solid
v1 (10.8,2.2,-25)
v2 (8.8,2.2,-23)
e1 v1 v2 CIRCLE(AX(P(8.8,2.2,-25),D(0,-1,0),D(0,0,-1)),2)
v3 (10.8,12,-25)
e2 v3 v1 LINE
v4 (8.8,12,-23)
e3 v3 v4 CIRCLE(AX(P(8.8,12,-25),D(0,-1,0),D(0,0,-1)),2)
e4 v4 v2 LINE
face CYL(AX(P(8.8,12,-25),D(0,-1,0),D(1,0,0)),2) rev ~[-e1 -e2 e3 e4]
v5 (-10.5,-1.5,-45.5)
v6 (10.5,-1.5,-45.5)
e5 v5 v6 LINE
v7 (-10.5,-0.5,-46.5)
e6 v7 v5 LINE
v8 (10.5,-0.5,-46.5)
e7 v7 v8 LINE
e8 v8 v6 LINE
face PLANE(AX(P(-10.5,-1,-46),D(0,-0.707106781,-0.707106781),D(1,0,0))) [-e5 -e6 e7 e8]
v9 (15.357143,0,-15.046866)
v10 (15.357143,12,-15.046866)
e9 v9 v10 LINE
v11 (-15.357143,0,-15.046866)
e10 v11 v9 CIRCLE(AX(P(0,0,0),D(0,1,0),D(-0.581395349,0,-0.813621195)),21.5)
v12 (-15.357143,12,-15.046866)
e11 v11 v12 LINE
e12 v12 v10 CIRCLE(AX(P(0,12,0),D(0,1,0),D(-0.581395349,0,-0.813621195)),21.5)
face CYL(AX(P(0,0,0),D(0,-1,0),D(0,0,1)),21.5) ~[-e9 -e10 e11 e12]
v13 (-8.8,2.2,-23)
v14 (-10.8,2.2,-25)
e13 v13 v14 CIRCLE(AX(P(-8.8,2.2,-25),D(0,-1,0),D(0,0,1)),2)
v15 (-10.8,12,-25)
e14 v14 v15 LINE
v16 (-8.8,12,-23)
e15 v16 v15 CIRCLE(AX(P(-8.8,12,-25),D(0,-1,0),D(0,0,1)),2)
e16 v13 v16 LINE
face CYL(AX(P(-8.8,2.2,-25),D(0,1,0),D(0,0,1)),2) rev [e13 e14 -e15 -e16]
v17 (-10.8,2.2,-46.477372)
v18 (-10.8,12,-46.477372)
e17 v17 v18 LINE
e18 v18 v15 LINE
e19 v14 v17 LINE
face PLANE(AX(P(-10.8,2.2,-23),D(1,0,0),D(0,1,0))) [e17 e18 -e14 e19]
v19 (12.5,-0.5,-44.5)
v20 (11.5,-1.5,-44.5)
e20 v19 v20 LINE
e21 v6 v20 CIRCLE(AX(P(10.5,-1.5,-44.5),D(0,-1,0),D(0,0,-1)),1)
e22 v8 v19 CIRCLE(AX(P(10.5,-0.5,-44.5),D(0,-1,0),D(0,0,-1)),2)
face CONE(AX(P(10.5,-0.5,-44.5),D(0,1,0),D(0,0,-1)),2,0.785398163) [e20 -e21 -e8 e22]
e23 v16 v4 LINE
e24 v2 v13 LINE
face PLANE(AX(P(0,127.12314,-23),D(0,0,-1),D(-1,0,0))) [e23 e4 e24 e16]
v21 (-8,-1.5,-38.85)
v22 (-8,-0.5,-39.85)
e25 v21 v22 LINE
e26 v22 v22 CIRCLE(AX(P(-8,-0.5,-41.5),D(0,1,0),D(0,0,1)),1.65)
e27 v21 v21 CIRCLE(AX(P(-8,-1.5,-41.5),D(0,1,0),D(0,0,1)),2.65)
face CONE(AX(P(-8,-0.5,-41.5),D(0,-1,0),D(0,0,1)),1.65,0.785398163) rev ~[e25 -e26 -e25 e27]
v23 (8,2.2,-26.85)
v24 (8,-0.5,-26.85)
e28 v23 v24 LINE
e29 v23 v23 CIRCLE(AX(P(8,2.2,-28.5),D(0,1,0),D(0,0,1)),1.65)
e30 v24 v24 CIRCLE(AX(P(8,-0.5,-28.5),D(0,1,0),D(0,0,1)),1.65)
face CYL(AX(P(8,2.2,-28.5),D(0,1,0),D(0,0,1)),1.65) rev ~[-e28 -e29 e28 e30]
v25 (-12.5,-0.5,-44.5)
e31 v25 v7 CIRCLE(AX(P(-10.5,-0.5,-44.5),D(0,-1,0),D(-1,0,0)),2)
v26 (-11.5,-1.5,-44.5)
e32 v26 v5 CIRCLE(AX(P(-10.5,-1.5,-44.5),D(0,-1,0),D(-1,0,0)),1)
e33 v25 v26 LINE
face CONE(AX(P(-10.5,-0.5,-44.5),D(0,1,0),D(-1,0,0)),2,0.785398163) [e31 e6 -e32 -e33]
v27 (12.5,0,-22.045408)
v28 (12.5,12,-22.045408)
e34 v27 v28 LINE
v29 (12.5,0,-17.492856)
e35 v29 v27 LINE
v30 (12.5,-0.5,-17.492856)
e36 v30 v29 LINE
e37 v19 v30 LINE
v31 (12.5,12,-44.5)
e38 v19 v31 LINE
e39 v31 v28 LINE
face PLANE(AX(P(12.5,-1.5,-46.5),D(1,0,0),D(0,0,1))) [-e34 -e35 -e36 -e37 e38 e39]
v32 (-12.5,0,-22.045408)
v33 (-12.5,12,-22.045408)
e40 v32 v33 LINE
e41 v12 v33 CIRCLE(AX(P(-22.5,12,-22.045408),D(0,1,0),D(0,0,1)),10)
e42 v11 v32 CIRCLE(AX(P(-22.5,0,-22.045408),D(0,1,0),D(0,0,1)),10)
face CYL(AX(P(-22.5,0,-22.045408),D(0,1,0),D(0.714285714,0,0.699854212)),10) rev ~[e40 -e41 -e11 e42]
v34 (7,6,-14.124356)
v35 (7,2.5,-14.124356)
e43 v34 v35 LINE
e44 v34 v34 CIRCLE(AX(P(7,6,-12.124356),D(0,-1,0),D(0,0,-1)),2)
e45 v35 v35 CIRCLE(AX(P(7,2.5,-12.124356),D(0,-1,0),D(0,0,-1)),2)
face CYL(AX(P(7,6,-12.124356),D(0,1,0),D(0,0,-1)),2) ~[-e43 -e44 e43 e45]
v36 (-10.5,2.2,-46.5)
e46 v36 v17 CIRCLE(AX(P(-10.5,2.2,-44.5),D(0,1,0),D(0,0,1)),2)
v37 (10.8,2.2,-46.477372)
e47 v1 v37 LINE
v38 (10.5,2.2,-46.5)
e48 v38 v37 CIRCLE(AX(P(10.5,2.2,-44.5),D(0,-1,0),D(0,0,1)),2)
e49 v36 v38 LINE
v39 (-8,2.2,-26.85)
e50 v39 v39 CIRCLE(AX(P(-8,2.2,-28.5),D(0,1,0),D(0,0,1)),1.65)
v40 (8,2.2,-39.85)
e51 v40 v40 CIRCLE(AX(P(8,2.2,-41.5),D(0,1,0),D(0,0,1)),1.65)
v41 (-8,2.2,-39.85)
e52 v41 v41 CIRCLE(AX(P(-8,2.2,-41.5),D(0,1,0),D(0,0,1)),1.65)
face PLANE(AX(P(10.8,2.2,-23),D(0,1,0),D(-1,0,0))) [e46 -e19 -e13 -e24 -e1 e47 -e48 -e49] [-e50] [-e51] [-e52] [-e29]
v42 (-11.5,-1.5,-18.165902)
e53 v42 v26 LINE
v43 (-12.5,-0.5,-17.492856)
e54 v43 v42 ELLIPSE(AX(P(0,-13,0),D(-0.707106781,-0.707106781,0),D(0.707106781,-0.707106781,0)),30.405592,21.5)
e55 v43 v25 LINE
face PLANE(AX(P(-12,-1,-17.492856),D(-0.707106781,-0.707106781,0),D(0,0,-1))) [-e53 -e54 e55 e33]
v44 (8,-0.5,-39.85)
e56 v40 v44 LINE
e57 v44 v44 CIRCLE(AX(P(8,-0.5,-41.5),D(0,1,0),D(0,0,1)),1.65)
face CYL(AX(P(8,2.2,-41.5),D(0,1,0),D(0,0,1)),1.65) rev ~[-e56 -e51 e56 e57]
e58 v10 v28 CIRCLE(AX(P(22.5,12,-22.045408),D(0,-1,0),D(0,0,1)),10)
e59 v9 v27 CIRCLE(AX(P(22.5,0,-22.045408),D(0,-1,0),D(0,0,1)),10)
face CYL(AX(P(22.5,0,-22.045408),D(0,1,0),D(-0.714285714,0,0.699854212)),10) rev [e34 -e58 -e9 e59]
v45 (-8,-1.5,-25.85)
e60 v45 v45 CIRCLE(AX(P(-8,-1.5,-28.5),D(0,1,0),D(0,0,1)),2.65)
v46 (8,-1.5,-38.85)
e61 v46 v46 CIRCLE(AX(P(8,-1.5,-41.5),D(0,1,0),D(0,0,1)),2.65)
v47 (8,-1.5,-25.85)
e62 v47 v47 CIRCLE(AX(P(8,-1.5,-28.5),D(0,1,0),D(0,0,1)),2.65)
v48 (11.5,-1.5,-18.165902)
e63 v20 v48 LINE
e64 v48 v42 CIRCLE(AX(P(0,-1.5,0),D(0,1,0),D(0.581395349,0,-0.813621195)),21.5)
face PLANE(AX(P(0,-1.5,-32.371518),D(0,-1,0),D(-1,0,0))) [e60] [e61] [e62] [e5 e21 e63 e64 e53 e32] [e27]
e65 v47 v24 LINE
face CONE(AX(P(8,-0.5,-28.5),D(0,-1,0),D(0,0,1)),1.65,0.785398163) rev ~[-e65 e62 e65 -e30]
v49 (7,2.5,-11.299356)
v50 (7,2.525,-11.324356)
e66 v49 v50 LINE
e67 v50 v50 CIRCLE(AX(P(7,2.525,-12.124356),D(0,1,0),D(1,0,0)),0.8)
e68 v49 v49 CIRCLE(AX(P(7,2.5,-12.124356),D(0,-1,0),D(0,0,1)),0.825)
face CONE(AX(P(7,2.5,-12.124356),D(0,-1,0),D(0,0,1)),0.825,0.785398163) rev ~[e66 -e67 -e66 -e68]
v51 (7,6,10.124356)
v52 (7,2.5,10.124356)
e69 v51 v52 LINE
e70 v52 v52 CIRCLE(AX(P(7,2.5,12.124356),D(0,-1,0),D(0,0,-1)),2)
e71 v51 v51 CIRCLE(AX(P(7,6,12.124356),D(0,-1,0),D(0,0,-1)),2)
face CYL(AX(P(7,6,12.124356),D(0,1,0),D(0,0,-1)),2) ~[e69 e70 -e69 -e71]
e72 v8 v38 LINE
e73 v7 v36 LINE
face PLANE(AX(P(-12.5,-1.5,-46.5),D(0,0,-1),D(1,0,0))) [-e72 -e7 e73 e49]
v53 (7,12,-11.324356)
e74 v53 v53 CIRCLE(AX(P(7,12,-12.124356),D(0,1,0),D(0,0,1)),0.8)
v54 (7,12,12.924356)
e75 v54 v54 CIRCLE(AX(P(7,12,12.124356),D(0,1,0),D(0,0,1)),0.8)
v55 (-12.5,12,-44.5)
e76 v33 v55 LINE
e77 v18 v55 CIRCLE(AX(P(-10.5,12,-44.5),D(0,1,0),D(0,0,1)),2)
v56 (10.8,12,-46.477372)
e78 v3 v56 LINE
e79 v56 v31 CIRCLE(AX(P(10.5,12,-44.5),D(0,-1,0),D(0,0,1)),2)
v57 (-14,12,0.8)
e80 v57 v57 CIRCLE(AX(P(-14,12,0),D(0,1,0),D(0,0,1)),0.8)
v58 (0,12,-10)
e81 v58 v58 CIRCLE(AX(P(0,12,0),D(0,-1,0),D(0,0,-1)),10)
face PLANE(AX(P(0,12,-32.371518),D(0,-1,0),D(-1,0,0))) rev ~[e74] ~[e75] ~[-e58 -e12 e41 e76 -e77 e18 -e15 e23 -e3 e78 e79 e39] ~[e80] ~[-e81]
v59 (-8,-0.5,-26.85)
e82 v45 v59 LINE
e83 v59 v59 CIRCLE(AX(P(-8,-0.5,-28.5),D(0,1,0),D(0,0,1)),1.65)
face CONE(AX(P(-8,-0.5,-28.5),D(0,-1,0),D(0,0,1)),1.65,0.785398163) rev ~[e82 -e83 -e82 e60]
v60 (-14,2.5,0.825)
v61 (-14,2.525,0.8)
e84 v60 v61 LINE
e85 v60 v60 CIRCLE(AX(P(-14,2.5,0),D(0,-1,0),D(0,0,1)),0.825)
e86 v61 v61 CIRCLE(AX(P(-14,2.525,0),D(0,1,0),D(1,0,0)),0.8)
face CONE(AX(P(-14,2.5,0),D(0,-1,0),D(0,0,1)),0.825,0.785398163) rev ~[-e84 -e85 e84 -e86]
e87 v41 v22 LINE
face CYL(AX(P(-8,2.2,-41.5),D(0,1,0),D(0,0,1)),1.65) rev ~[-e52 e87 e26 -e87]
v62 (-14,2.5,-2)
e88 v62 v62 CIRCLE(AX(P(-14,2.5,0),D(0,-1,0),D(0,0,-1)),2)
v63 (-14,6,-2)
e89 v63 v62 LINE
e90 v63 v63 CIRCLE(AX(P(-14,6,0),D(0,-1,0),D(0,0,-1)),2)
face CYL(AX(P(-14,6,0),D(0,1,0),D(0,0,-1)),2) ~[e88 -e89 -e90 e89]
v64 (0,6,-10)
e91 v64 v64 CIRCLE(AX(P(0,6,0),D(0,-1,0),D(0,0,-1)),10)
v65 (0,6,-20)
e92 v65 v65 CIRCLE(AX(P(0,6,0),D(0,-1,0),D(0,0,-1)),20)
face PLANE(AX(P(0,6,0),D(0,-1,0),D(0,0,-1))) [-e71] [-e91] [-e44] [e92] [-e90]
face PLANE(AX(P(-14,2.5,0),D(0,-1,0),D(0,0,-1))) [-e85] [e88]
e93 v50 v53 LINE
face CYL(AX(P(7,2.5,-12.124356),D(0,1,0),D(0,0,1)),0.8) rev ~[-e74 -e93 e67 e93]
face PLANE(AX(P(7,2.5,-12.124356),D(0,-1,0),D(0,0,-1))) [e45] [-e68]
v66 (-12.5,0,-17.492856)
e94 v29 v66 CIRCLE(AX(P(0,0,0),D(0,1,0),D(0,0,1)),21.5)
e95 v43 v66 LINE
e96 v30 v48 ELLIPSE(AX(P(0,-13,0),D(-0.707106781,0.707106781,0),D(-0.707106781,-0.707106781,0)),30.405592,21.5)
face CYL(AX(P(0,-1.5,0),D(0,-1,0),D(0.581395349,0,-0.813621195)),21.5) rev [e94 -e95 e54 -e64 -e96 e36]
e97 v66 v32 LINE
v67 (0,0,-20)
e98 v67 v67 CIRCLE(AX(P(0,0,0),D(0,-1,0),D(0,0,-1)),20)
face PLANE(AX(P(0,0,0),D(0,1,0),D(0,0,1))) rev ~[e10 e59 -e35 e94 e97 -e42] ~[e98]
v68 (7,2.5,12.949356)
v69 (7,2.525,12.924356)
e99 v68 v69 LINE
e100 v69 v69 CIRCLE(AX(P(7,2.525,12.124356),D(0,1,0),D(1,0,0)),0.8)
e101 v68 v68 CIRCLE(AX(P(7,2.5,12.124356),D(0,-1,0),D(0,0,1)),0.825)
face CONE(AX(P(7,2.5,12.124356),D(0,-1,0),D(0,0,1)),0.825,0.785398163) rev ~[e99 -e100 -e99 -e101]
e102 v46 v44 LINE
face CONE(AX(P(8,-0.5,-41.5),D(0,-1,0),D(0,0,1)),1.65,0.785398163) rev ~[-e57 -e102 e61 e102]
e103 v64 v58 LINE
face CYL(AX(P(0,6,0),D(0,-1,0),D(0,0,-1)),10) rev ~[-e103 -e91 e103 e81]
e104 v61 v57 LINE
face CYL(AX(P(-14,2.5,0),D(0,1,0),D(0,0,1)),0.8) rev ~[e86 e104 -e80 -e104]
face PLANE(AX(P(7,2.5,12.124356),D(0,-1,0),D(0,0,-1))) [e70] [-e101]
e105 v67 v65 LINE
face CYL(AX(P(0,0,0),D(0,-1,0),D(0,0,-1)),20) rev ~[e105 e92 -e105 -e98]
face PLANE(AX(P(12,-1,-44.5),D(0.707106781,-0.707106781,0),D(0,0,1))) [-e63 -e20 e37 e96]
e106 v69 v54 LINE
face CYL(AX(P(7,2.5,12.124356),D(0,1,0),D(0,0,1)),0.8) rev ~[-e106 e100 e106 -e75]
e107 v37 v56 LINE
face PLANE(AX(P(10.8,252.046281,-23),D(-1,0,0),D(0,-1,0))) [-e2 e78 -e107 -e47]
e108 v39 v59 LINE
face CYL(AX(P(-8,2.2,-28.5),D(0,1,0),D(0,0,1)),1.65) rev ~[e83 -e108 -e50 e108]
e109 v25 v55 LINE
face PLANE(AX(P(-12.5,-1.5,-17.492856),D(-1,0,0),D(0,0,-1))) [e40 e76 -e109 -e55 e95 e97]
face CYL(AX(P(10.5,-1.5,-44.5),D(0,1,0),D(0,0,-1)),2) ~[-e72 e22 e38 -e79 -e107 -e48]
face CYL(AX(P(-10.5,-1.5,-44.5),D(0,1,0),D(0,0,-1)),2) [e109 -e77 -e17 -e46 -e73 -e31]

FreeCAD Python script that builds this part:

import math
import FreeCAD as App
import Part
import Sketcher
from FreeCAD import Vector


def edges_at(feature, points):
    """Names of the edges that pass closest to the given points."""
    edges = feature.Shape.Edges
    near = lambda p: min(range(len(edges)), key=lambda i: edges[i].distToShape(Part.Vertex(*p))[0])
    return sorted({f"Edge{near(p) + 1}" for p in points})

doc = App.newDocument("Part")
body = doc.addObject("PartDesign::Body", "Body")

sketch1 = body.newObject("Sketcher::SketchObject", "Sketch")
sketch1.AttachmentSupport = (doc.getObject("XZ_Plane"), [""])
sketch1.MapMode = "FlatFace"
sketch1.addGeometry(Part.Circle(Vector(0, 0, 0), Vector(0, 0, 1), 22), False)
sketch1.addConstraint([
    Sketcher.Constraint("Coincident", 0, 3, -1, 1),
    Sketcher.Constraint("Diameter", 0, 43.0),
])
pad1 = body.newObject("PartDesign::Pad", "Pad")
pad1.Profile = sketch1
pad1.Length = 12
pad1.Reversed = True

sketch2 = body.newObject("Sketcher::SketchObject", "Sketch001")
sketch2.AttachmentSupport = (doc.getObject("XZ_Plane"), [""])
sketch2.MapMode = "FlatFace"
sketch2.AttachmentOffset = App.Placement(Vector(0, 0, 1.5), App.Rotation())
sketch2.addGeometry([
    Part.LineSegment(Vector(12, -46, 0), Vector(-12, -46, 0)),
    Part.LineSegment(Vector(-12, -46, 0), Vector(-12, -17, 0)),
    Part.ArcOfCircle(Part.Circle(Vector(0, 0, 0), Vector(0, 0, 1), 22), math.radians(-126), math.radians(-54)),
    Part.LineSegment(Vector(12, -17, 0), Vector(12, -46, 0)),
], False)
sketch2.addConstraint([
    Sketcher.Constraint("Coincident", 0, 2, 1, 1),
    Sketcher.Constraint("Coincident", 1, 2, 2, 1),
    Sketcher.Constraint("Coincident", 2, 2, 3, 1),
    Sketcher.Constraint("Coincident", 3, 2, 0, 1),
    Sketcher.Constraint("Horizontal", 0),
    Sketcher.Constraint("Vertical", 1),
    Sketcher.Constraint("Vertical", 3),
    Sketcher.Constraint("Coincident", 2, 3, -1, 1),
    Sketcher.Constraint("Horizontal", 1, 2, 2, 2),
    Sketcher.Constraint("Radius", 2, 21.5),
    Sketcher.Constraint("DistanceX", 0, 2, 0, 1, 25.0),
    Sketcher.Constraint("DistanceY", 0, 2, -1, 1, 46.5),
])
pad2 = body.newObject("PartDesign::Pad", "Pad001")
pad2.Profile = sketch2
pad2.Length = 13.5
pad2.Reversed = True
doc.recompute()

fillet = body.newObject("PartDesign::Fillet", "Fillet")
fillet.Base = (pad2, edges_at(pad2, [(12.5, 6, -17.493), (-12.5, 6, -17.493)]))
fillet.Radius = 10

sketch3 = body.newObject("Sketcher::SketchObject", "Sketch002")
sketch3.AttachmentSupport = (doc.getObject("XZ_Plane"), [""])
sketch3.MapMode = "FlatFace"
sketch3.addGeometry(Part.Circle(Vector(0, 0, 0), Vector(0, 0, 1), 20), False)
sketch3.addConstraint([
    Sketcher.Constraint("Coincident", 0, 3, -1, 1),
    Sketcher.Constraint("Diameter", 0, 40.0),
])
pocket1 = body.newObject("PartDesign::Pocket", "Pocket")
pocket1.Profile = sketch3
pocket1.Length = 6

sketch4 = body.newObject("Sketcher::SketchObject", "Sketch003")
sketch4.AttachmentSupport = (doc.getObject("XZ_Plane"), [""])
sketch4.MapMode = "FlatFace"
sketch4.AttachmentOffset = App.Placement(Vector(0, 0, -6), App.Rotation())
sketch4.addGeometry(Part.Circle(Vector(0, 0, 0), Vector(0, 0, 1), 10), False)
sketch4.addConstraint([
    Sketcher.Constraint("Coincident", 0, 3, -1, 1),
    Sketcher.Constraint("Diameter", 0, 20.0),
])
pocket2 = body.newObject("PartDesign::Pocket", "Pocket001")
pocket2.Profile = sketch4
pocket2.Length = 6

sketch5 = body.newObject("Sketcher::SketchObject", "Sketch004")
sketch5.AttachmentSupport = (doc.getObject("XZ_Plane"), [""])
sketch5.MapMode = "FlatFace"
sketch5.AttachmentOffset = App.Placement(Vector(0, 0, -6), App.Rotation())
sketch5.addGeometry([
    Part.Circle(Vector(-14, 0, 0), Vector(0, 0, 1), 2),
    Part.Circle(Vector(7, 12.1, 0), Vector(0, 0, 1), 2),
    Part.Circle(Vector(7, -12.1, 0), Vector(0, 0, 1), 2),
], False)
sketch5.addConstraint([
    Sketcher.Constraint("Equal", 0, 1),
    Sketcher.Constraint("Equal", 1, 2),
    Sketcher.Constraint("Symmetric", 1, 3, 2, 3, -1),
    Sketcher.Constraint("PointOnObject", 0, 3, -1),
    Sketcher.Constraint("Diameter", 0, 4.0),
    Sketcher.Constraint("DistanceX", 0, 3, -1, 1, 14.0),
    Sketcher.Constraint("DistanceX", -1, 1, 1, 3, 7.0),
    Sketcher.Constraint("DistanceY", 2, 3, 1, 3, 24.248711),
])
pad3 = body.newObject("PartDesign::Pad", "Pad002")
pad3.Profile = sketch5
pad3.Length = 3.5

sketch6 = body.newObject("Sketcher::SketchObject", "Sketch005")
sketch6.AttachmentSupport = (doc.getObject("XZ_Plane"), [""])
sketch6.MapMode = "FlatFace"
sketch6.AttachmentOffset = App.Placement(Vector(0, 0, -2.5), App.Rotation())
sketch6.addGeometry([
    Part.Circle(Vector(7, 12.1, 0), Vector(0, 0, 1), 0.8),
    Part.Circle(Vector(7, -12.1, 0), Vector(0, 0, 1), 0.8),
    Part.Circle(Vector(-14, 0, 0), Vector(0, 0, 1), 0.8),
], False)
sketch6.addConstraint([
    Sketcher.Constraint("Equal", 0, 1),
    Sketcher.Constraint("Equal", 1, 2),
    Sketcher.Constraint("Symmetric", 0, 3, 1, 3, -1),
    Sketcher.Constraint("PointOnObject", 2, 3, -1),
    Sketcher.Constraint("Diameter", 0, 1.6),
    Sketcher.Constraint("DistanceX", -1, 1, 0, 3, 7.0),
    Sketcher.Constraint("DistanceX", 2, 3, -1, 1, 14.0),
    Sketcher.Constraint("DistanceY", 1, 3, 0, 3, 24.248711),
])
doc.recompute()
hole = body.newObject("PartDesign::Hole", "Hole")
hole.Profile = sketch6
hole.ThreadType = "None"
hole.Diameter = 1.6
hole.DepthType = "ThroughAll"
hole.HoleCutType = "Countersink"
hole.HoleCutDiameter = 1.65
hole.HoleCutCountersinkAngle = 90

sketch7 = body.newObject("Sketcher::SketchObject", "Sketch006")
sketch7.AttachmentSupport = (doc.getObject("XY_Plane"), [""])
sketch7.MapMode = "FlatFace"
sketch7.AttachmentOffset = App.Placement(Vector(0, 0, -46.5), App.Rotation())
sketch7.addGeometry([
    Part.LineSegment(Vector(11, 2, 0), Vector(-11, 2, 0)),
    Part.LineSegment(Vector(-11, 2, 0), Vector(-11, 252, 0)),
    Part.LineSegment(Vector(-11, 252, 0), Vector(11, 252, 0)),
    Part.LineSegment(Vector(11, 252, 0), Vector(11, 2, 0)),
], False)
sketch7.addConstraint([
    Sketcher.Constraint("Coincident", 0, 2, 1, 1),
    Sketcher.Constraint("Coincident", 1, 2, 2, 1),
    Sketcher.Constraint("Coincident", 2, 2, 3, 1),
    Sketcher.Constraint("Coincident", 3, 2, 0, 1),
    Sketcher.Constraint("Horizontal", 0),
    Sketcher.Constraint("Vertical", 1),
    Sketcher.Constraint("Horizontal", 2),
    Sketcher.Constraint("Vertical", 3),
    Sketcher.Constraint("DistanceX", 0, 2, 0, 1, 21.6),
    Sketcher.Constraint("DistanceX", 0, 2, -1, 1, 10.8),
    Sketcher.Constraint("DistanceY", -1, 1, 0, 2, 2.2),
    Sketcher.Constraint("DistanceY", 1, 1, 1, 2, 249.846281),
])
pocket3 = body.newObject("PartDesign::Pocket", "Pocket002")
pocket3.Profile = sketch7
pocket3.Type = "TwoLengths"
pocket3.Length = 73.320467
pocket3.Length2 = 23.5
doc.recompute()

fillet2 = body.newObject("PartDesign::Fillet", "Fillet001")
fillet2.Base = (pocket3, edges_at(pocket3, [(10.8, 7.1, -23), (-10.8, 7.1, -23)]))
fillet2.Radius = 2
doc.recompute()

fillet3 = body.newObject("PartDesign::Fillet", "Fillet002")
fillet3.Base = (fillet2, edges_at(fillet2, [(12.5, 5.25, -46.5), (-12.5, 5.25, -46.5)]))
fillet3.Radius = 2
doc.recompute()

chamfer = body.newObject("PartDesign::Chamfer", "Chamfer")
chamfer.Base = (fillet3, edges_at(fillet3, [
    (0, -1.5, -46.5),
    (-12.5, -1.5, -30.996),
    (-11.914, -1.5, -45.914),
    (11.914, -1.5, -45.914),
    (12.5, -1.5, -30.996),
]))
chamfer.Size = 1

sketch8 = body.newObject("Sketcher::SketchObject", "Sketch007")
sketch8.AttachmentSupport = (doc.getObject("XZ_Plane"), [""])
sketch8.MapMode = "FlatFace"
sketch8.AttachmentOffset = App.Placement(Vector(0, 0, -2.2), App.Rotation())
sketch8.addGeometry([
    Part.Circle(Vector(-8, -41.5, 0), Vector(0, 0, 1), 1.6),
    Part.Circle(Vector(-8, -28.5, 0), Vector(0, 0, 1), 1.6),
    Part.Circle(Vector(8, -28.5, 0), Vector(0, 0, 1), 1.6),
    Part.Circle(Vector(8, -41.5, 0), Vector(0, 0, 1), 1.6),
], False)
sketch8.addConstraint([
    Sketcher.Constraint("Equal", 0, 1),
    Sketcher.Constraint("Equal", 1, 2),
    Sketcher.Constraint("Equal", 2, 3),
    Sketcher.Constraint("Symmetric", 1, 3, 2, 3, -2),
    Sketcher.Constraint("Symmetric", 0, 3, 3, 3, -2),
    Sketcher.Constraint("Vertical", 0, 3, 1, 3),
    Sketcher.Constraint("Diameter", 0, 3.3),
    Sketcher.Constraint("DistanceX", 0, 3, -1, 1, 8.0),
    Sketcher.Constraint("DistanceY", 0, 3, 1, 3, 13.0),
    Sketcher.Constraint("DistanceY", 0, 3, -1, 1, 41.5),
])
pocket4 = body.newObject("PartDesign::Pocket", "Pocket003")
pocket4.Profile = sketch8
pocket4.Length = 23.5
pocket4.Reversed = True
doc.recompute()

chamfer2 = body.newObject("PartDesign::Chamfer", "Chamfer001")
chamfer2.Base = (pocket4, edges_at(pocket4, [
    (8, -1.5, -43.15),
    (8, -1.5, -30.15),
    (-8, -1.5, -30.15),
    (-8, -1.5, -43.15),
]))
chamfer2.Size = 1

doc.recompute()
